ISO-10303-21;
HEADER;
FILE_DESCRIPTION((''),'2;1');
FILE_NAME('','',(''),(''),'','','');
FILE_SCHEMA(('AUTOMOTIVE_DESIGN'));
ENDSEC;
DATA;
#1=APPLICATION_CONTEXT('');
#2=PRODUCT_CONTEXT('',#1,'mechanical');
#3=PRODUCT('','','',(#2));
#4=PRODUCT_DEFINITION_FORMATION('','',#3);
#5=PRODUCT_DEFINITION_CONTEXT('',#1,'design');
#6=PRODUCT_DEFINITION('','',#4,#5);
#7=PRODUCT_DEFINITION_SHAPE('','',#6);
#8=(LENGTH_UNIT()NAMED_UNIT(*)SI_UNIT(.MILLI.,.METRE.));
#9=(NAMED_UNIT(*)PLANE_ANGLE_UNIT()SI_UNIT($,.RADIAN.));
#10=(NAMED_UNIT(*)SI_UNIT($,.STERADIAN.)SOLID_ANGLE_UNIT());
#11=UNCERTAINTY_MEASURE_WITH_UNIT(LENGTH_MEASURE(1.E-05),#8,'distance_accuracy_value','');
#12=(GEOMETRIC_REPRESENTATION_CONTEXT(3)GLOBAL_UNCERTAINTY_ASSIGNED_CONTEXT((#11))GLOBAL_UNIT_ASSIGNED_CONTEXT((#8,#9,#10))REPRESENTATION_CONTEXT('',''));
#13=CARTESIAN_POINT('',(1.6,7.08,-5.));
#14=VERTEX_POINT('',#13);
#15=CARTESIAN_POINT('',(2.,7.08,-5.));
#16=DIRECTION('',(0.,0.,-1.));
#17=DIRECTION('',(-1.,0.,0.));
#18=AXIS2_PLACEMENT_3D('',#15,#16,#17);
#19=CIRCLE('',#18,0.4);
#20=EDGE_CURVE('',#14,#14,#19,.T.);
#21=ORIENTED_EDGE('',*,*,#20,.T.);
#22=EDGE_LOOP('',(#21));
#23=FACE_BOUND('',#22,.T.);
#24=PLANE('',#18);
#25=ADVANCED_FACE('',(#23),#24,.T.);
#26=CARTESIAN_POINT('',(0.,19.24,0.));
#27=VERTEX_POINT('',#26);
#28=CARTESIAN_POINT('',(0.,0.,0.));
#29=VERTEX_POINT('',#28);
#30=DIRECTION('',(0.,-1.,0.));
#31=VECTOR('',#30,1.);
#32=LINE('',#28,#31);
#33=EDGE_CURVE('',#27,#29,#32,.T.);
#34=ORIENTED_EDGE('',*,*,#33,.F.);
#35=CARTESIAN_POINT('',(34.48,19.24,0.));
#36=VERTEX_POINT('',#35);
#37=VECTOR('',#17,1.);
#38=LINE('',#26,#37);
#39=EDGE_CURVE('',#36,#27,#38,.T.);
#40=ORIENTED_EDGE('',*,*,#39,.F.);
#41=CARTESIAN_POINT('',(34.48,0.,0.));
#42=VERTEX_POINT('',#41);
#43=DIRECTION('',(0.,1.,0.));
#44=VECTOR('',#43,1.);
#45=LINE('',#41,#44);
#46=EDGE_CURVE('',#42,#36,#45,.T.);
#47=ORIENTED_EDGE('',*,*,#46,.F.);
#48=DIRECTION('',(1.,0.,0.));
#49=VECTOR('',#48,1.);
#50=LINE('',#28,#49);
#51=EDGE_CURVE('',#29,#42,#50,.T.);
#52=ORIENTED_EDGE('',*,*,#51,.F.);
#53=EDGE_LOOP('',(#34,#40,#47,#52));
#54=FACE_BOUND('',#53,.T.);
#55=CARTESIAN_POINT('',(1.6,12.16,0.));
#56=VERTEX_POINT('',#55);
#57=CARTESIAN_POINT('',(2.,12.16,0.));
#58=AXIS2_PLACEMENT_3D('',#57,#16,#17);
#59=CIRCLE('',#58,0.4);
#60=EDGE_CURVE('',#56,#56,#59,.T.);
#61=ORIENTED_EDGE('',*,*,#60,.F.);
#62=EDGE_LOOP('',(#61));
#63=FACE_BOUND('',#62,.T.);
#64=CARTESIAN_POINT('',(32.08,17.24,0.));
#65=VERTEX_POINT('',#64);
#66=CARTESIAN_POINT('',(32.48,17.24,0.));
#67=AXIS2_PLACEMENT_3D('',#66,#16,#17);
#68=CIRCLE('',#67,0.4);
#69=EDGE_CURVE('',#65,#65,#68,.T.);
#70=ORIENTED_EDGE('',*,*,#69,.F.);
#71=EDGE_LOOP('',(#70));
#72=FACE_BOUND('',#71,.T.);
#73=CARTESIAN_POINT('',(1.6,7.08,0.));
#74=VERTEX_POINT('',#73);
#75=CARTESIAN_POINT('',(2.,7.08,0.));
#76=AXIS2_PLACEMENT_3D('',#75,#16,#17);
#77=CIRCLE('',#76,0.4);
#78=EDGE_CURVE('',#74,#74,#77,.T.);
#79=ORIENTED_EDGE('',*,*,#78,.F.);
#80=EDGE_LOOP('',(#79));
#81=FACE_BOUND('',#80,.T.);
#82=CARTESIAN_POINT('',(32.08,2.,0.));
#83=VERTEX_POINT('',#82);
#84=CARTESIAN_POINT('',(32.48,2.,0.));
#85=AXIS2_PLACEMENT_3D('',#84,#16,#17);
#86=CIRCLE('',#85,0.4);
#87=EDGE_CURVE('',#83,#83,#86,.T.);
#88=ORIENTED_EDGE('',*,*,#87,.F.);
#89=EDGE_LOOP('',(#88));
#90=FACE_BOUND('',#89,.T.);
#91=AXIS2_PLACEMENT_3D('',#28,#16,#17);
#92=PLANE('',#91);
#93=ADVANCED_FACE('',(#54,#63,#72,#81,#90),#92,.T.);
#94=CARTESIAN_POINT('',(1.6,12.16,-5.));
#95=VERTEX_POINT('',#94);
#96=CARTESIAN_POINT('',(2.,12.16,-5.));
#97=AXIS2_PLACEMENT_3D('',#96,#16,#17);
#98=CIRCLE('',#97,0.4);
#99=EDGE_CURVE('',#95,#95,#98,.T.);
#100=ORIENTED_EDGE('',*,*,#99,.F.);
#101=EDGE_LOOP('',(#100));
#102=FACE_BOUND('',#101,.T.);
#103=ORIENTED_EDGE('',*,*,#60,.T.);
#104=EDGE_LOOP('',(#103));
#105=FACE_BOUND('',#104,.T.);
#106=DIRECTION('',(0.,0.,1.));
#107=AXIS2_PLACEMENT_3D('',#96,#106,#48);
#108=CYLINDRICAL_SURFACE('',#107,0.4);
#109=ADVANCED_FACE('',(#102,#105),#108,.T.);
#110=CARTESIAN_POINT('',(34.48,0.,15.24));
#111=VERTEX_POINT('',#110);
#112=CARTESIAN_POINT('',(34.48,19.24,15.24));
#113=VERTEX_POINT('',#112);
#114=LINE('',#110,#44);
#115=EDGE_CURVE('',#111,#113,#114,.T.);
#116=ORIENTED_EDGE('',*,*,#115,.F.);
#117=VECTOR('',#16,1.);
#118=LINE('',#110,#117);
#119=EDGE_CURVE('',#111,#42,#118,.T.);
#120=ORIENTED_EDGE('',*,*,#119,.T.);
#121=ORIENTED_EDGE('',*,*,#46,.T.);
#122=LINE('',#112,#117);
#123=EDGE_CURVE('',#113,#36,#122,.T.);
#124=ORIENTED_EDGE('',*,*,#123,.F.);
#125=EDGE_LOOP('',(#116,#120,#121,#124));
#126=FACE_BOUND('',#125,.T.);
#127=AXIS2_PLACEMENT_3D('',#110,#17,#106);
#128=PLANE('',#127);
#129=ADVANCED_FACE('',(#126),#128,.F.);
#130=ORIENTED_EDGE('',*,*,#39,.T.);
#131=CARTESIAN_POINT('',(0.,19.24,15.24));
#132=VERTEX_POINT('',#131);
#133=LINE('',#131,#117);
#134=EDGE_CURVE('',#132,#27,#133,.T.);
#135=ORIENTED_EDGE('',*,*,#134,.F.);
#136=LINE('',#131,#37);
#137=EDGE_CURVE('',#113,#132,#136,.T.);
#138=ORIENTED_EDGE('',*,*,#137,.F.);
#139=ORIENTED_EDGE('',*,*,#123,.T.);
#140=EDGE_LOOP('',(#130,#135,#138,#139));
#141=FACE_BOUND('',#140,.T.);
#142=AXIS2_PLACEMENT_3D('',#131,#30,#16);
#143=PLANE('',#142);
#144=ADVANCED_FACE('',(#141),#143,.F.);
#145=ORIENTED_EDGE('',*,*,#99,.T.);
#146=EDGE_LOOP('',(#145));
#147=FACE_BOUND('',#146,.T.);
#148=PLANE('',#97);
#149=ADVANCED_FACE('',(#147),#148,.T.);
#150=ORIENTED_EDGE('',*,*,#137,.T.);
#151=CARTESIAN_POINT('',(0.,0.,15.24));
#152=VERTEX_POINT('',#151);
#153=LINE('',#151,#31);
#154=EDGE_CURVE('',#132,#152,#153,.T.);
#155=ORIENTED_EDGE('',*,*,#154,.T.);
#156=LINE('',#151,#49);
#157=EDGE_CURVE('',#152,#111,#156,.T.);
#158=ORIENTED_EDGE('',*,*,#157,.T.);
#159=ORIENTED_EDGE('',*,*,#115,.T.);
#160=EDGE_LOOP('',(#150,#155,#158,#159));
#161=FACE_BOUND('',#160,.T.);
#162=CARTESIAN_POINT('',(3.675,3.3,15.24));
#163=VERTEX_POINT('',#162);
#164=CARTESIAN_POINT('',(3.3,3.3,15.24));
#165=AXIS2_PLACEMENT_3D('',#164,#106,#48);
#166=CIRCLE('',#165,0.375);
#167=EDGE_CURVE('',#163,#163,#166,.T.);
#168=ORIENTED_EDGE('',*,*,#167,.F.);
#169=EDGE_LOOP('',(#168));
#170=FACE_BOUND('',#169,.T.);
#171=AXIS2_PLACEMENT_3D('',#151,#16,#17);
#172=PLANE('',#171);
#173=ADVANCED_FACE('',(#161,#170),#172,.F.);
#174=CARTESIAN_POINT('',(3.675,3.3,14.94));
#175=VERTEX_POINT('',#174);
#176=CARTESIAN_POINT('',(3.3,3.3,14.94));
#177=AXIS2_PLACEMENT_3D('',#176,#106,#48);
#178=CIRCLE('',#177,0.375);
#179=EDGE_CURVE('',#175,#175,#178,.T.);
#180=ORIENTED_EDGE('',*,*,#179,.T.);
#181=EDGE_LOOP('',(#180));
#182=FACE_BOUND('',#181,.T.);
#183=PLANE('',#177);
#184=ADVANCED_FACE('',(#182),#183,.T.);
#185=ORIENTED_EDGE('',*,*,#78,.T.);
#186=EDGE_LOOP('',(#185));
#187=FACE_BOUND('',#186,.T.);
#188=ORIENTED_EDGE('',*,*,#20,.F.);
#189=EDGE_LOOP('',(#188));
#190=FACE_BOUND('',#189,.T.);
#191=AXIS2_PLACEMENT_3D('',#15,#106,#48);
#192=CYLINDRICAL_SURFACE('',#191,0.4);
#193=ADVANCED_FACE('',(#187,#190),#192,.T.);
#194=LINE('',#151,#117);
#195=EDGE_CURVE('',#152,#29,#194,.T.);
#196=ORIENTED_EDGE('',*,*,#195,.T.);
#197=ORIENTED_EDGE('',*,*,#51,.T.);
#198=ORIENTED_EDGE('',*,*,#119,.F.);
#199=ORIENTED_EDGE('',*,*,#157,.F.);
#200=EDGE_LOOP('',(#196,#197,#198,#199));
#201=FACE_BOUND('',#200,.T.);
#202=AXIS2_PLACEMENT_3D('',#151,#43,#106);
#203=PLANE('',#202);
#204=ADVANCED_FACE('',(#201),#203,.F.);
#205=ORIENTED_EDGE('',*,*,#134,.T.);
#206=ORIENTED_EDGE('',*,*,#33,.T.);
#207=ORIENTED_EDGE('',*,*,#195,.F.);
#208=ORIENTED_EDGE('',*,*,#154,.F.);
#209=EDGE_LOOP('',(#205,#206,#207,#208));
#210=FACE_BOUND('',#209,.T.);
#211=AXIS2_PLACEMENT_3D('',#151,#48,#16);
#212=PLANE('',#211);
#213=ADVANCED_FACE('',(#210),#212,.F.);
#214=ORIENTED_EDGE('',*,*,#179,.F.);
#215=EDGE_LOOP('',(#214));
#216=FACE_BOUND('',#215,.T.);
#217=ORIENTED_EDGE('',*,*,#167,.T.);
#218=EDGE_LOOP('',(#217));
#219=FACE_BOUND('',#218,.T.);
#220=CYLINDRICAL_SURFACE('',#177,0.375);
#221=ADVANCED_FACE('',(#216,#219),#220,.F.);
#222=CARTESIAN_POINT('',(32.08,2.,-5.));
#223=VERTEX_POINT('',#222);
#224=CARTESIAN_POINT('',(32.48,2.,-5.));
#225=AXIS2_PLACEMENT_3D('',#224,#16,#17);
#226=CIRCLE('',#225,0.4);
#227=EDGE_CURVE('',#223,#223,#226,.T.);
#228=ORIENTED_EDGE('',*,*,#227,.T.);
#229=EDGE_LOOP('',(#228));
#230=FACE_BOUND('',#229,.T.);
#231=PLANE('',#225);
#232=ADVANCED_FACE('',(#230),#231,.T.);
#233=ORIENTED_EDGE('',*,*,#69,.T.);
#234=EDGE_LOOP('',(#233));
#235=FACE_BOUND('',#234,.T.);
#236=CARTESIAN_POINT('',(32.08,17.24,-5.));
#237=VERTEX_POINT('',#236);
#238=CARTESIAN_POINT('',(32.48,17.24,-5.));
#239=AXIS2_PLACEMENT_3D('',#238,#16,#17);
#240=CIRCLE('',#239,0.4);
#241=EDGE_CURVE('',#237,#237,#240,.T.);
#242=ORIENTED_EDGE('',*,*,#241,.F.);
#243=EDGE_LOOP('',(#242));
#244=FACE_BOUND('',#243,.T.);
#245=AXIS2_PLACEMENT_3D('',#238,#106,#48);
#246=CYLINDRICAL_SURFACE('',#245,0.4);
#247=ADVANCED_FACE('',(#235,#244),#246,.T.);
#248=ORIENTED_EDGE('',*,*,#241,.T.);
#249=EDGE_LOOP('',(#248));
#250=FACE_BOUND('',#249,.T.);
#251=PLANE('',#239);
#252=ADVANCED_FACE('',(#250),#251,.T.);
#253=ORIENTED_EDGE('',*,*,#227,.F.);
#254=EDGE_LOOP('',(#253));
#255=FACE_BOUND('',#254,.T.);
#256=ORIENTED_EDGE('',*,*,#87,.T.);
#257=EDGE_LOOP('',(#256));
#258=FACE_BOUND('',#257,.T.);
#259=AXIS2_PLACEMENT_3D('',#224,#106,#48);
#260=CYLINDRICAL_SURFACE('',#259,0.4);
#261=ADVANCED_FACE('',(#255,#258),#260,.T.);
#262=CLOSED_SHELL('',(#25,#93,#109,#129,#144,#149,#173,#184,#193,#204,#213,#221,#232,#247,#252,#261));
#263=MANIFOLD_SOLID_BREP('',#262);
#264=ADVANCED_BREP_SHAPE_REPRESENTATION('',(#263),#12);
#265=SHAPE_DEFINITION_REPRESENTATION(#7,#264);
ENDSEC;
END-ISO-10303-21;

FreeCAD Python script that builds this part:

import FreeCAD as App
import Part
import Sketcher
from FreeCAD import Vector
Q = App.Units.Quantity


def add_polygon(sketch, points):
    """Adds a closed chain of lines whose ends are joined by coincident constraints."""
    first, n = sketch.GeometryCount, len(points)
    for a, b in zip(points, points[1:] + points[:1]):
        sketch.addGeometry(Part.LineSegment(App.Vector(*a, 0), App.Vector(*b, 0)), False)
    for i in range(n):
        sketch.addConstraint(Sketcher.Constraint("Coincident", first + i, 2, first + (i + 1) % n, 1))

doc = App.newDocument("Part")
params = doc.addObject("Spreadsheet::Sheet", "Params")
for row, (alias, value) in enumerate([
    ("sketch1_width", "34.48 mm"),
    ("sketch1_height", "19.24 mm"),
    ("pad1_length", "15.24 mm"),
    ("sketch2_diameter", "0.75 mm"),
    ("pocket1_length", "0.3 mm"),
    ("sketch3_diameter", "0.8 mm"),
    ("pad2_length", "5 mm"),
], start=1):
    params.set(f"A{row}", alias)
    params.set(f"B{row}", "=" + value)
    params.setAlias(f"B{row}", alias)

body = doc.addObject("PartDesign::Body", "Body")

# Sketch on XY plane
sketch1 = body.newObject("Sketcher::SketchObject", "Sketch")
sketch1.AttachmentSupport = (doc.getObject("XY_Plane"), [""])
sketch1.MapMode = "FlatFace"
add_polygon(sketch1, [(0, 19), (0, 0), (34, 0), (34, 19)])  # lines 0-3
sketch1.addConstraint([
    Sketcher.Constraint("Vertical", 0),
    Sketcher.Constraint("Horizontal", 1),
    Sketcher.Constraint("Vertical", 2),
    Sketcher.Constraint("Horizontal", 3),
    Sketcher.Constraint("Coincident", 0, 2, -1, 1),
    Sketcher.Constraint("DistanceX", 1, 1, 1, 2, Q("34.48 mm")),
    Sketcher.Constraint("DistanceY", 0, 2, 0, 1, Q("19.24 mm")),
])
sketch1.setExpression("Constraints[9]", "Params.sketch1_width")
sketch1.setExpression("Constraints[10]", "Params.sketch1_height")
pad1 = body.newObject("PartDesign::Pad", "Pad")
pad1.Profile = sketch1
pad1.setExpression("Length", "Params.pad1_length")

# Sketch on XY plane
sketch2 = body.newObject("Sketcher::SketchObject", "Sketch001")
sketch2.AttachmentSupport = (doc.getObject("XY_Plane"), [""])
sketch2.MapMode = "FlatFace"
sketch2.AttachmentOffset = App.Placement(Vector(0, 0, 15.24), App.Rotation())
sketch2.addGeometry(Part.Circle(Vector(3.3, 3.3, 0), Vector(0, 0, 1), 0.38), False)
sketch2.addConstraint([
    Sketcher.Constraint("Diameter", 0, Q("0.75 mm")),
    Sketcher.Constraint("DistanceX", -1, 1, 0, 3, Q("3.3 mm")),
    Sketcher.Constraint("DistanceY", -1, 1, 0, 3, Q("3.3 mm")),
])
sketch2.setExpression("Constraints[0]", "Params.sketch2_diameter")
pocket1 = body.newObject("PartDesign::Pocket", "Pocket")
pocket1.Profile = sketch2
pocket1.setExpression("Length", "Params.pocket1_length")

# Sketch on XY plane
sketch3 = body.newObject("Sketcher::SketchObject", "Sketch002")
sketch3.AttachmentSupport = (doc.getObject("XY_Plane"), [""])
sketch3.MapMode = "FlatFace"
sketch3.addGeometry([
    Part.Circle(Vector(32.48, 17.24, 0), Vector(0, 0, 1), 0.4),
    Part.Circle(Vector(32.48, 2, 0), Vector(0, 0, 1), 0.4),
    Part.Circle(Vector(2, 12.16, 0), Vector(0, 0, 1), 0.4),
    Part.Circle(Vector(2, 7.08, 0), Vector(0, 0, 1), 0.4),
], False)
sketch3.addConstraint([
    Sketcher.Constraint("Equal", 0, 1),
    Sketcher.Constraint("Equal", 1, 2),
    Sketcher.Constraint("Equal", 2, 3),
    Sketcher.Constraint("Vertical", 0, 3, 1, 3),
    Sketcher.Constraint("Vertical", 2, 3, 3, 3),
    Sketcher.Constraint("Diameter", 0, Q("0.8 mm")),
    Sketcher.Constraint("DistanceY", -1, 1, 1, 3, Q("2 mm")),
    Sketcher.Constraint("DistanceX", -1, 1, 2, 3, Q("2 mm")),
    Sketcher.Constraint("DistanceX", -1, 1, 0, 3, Q("32.48 mm")),
    Sketcher.Constraint("DistanceY", -1, 1, 0, 3, Q("17.24 mm")),
    Sketcher.Constraint("DistanceY", -1, 1, 2, 3, Q("12.16 mm")),
    Sketcher.Constraint("DistanceY", -1, 1, 3, 3, Q("7.08 mm")),
])
sketch3.setExpression("Constraints[5]", "Params.sketch3_diameter")
pad2 = body.newObject("PartDesign::Pad", "Pad001")
pad2.Profile = sketch3
pad2.setExpression("Length", "Params.pad2_length")
pad2.Reversed = True

doc.recompute()
